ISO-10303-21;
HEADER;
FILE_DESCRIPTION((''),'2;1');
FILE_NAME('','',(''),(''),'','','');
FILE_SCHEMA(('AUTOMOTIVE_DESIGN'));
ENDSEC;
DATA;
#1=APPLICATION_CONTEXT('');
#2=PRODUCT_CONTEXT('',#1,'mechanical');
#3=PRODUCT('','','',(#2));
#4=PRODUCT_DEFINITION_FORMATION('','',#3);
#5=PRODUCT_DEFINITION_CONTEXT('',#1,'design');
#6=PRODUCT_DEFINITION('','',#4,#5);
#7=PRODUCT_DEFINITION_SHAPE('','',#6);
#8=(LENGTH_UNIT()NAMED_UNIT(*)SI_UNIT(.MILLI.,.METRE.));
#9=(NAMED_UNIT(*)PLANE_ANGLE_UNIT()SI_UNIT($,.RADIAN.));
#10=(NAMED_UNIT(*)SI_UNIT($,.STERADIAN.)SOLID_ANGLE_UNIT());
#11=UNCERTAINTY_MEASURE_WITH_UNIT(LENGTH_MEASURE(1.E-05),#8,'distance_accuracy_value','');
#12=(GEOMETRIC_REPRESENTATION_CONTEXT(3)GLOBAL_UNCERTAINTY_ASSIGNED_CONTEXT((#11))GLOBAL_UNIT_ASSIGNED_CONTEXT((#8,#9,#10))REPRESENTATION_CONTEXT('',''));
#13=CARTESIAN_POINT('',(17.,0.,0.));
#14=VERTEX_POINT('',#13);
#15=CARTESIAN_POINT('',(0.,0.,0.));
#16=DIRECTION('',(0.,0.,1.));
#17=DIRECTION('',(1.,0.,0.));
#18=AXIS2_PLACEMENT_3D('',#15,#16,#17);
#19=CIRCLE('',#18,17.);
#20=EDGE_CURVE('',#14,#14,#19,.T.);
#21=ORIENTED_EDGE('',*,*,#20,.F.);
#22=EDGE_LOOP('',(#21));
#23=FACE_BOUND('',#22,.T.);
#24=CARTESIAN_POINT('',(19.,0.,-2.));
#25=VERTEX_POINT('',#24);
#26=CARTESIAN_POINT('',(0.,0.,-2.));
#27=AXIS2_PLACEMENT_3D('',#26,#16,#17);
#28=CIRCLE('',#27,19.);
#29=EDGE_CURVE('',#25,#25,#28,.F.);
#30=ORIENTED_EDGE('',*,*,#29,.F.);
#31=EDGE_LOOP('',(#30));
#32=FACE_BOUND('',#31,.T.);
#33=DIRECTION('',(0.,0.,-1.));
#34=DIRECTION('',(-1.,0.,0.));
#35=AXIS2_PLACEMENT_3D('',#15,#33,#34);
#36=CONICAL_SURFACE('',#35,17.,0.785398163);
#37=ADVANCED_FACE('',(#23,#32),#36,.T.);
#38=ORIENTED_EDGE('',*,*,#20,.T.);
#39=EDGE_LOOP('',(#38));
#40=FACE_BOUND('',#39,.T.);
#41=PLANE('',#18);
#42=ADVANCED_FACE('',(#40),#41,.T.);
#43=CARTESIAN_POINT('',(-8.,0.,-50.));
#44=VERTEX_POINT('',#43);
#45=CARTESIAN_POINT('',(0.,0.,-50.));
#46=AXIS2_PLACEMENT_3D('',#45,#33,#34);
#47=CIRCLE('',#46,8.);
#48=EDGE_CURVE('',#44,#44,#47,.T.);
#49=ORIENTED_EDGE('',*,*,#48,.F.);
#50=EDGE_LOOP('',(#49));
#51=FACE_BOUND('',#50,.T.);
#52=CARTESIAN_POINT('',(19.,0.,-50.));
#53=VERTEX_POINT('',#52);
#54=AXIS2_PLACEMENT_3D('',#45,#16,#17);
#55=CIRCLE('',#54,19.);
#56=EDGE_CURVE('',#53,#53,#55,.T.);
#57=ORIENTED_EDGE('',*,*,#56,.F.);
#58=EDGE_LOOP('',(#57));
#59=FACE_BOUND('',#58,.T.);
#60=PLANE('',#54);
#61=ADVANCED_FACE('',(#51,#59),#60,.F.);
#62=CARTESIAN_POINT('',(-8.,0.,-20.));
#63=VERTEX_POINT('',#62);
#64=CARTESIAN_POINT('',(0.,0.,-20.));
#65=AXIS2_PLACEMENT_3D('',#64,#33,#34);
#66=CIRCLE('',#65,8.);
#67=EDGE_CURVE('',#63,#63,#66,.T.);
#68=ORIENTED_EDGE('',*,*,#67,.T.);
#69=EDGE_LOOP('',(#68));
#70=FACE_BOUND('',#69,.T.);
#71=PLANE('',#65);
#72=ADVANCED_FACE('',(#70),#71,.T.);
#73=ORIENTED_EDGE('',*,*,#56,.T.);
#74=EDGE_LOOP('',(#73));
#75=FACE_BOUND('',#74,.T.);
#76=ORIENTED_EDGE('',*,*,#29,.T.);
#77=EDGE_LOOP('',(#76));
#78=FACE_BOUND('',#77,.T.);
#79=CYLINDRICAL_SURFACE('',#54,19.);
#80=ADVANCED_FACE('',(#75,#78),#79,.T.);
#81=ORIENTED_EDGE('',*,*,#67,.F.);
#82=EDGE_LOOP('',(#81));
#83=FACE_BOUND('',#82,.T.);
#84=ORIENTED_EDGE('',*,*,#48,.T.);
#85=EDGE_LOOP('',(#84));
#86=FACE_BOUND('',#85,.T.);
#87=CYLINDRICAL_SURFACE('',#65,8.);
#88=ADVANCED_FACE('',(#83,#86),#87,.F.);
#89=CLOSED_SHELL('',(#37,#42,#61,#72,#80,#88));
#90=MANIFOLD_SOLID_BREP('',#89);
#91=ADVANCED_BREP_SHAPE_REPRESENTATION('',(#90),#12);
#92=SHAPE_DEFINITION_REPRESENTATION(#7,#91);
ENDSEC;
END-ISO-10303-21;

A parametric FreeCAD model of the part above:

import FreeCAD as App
import Part
import Sketcher
Q = App.Units.Quantity


def edges_at(feature, points):
    """Names of the edges that pass closest to the given points."""
    edges = feature.Shape.Edges
    near = lambda p: min(range(len(edges)), key=lambda i: edges[i].distToShape(Part.Vertex(*p))[0])
    return sorted({f"Edge{near(p) + 1}" for p in points})

doc = App.newDocument("Part")
body = doc.addObject("PartDesign::Body", "Body")

sketch1 = body.newObject("Sketcher::SketchObject", "Sketch")
sketch1.AttachmentSupport = (doc.getObject("XY_Plane"), [""])
sketch1.MapMode = "FlatFace"
sketch1.addGeometry(Part.Circle(App.Vector(0, 0, 0), App.Vector(0, 0, 1), 19), False)
sketch1.addConstraint([
    Sketcher.Constraint("Coincident", 0, 3, -1, 1),
    Sketcher.Constraint("Diameter", 0, Q("38 mm")),
])
pad1 = body.newObject("PartDesign::Pad", "Pad")
pad1.Profile = sketch1
pad1.Length = 50
pad1.Reversed = True
doc.recompute()

chamfer = body.newObject("PartDesign::Chamfer", "Chamfer")
chamfer.Base = (pad1, edges_at(pad1, [(-19, 0, 0)]))
chamfer.Size = 2

sketch2 = body.newObject("Sketcher::SketchObject", "Sketch001")
sketch2.AttachmentSupport = (doc.getObject("XY_Plane"), [""])
sketch2.MapMode = "FlatFace"
sketch2.AttachmentOffset = App.Placement(App.Vector(0, 0, -50), App.Rotation())
sketch2.addGeometry(Part.Circle(App.Vector(0, 0, 0), App.Vector(0, 0, 1), 8), False)
sketch2.addConstraint([
    Sketcher.Constraint("Coincident", 0, 3, -1, 1),
    Sketcher.Constraint("Diameter", 0, Q("16 mm")),
])
pocket1 = body.newObject("PartDesign::Pocket", "Pocket")
pocket1.Profile = sketch2
pocket1.Length = 30
pocket1.Reversed = True

doc.recompute()
